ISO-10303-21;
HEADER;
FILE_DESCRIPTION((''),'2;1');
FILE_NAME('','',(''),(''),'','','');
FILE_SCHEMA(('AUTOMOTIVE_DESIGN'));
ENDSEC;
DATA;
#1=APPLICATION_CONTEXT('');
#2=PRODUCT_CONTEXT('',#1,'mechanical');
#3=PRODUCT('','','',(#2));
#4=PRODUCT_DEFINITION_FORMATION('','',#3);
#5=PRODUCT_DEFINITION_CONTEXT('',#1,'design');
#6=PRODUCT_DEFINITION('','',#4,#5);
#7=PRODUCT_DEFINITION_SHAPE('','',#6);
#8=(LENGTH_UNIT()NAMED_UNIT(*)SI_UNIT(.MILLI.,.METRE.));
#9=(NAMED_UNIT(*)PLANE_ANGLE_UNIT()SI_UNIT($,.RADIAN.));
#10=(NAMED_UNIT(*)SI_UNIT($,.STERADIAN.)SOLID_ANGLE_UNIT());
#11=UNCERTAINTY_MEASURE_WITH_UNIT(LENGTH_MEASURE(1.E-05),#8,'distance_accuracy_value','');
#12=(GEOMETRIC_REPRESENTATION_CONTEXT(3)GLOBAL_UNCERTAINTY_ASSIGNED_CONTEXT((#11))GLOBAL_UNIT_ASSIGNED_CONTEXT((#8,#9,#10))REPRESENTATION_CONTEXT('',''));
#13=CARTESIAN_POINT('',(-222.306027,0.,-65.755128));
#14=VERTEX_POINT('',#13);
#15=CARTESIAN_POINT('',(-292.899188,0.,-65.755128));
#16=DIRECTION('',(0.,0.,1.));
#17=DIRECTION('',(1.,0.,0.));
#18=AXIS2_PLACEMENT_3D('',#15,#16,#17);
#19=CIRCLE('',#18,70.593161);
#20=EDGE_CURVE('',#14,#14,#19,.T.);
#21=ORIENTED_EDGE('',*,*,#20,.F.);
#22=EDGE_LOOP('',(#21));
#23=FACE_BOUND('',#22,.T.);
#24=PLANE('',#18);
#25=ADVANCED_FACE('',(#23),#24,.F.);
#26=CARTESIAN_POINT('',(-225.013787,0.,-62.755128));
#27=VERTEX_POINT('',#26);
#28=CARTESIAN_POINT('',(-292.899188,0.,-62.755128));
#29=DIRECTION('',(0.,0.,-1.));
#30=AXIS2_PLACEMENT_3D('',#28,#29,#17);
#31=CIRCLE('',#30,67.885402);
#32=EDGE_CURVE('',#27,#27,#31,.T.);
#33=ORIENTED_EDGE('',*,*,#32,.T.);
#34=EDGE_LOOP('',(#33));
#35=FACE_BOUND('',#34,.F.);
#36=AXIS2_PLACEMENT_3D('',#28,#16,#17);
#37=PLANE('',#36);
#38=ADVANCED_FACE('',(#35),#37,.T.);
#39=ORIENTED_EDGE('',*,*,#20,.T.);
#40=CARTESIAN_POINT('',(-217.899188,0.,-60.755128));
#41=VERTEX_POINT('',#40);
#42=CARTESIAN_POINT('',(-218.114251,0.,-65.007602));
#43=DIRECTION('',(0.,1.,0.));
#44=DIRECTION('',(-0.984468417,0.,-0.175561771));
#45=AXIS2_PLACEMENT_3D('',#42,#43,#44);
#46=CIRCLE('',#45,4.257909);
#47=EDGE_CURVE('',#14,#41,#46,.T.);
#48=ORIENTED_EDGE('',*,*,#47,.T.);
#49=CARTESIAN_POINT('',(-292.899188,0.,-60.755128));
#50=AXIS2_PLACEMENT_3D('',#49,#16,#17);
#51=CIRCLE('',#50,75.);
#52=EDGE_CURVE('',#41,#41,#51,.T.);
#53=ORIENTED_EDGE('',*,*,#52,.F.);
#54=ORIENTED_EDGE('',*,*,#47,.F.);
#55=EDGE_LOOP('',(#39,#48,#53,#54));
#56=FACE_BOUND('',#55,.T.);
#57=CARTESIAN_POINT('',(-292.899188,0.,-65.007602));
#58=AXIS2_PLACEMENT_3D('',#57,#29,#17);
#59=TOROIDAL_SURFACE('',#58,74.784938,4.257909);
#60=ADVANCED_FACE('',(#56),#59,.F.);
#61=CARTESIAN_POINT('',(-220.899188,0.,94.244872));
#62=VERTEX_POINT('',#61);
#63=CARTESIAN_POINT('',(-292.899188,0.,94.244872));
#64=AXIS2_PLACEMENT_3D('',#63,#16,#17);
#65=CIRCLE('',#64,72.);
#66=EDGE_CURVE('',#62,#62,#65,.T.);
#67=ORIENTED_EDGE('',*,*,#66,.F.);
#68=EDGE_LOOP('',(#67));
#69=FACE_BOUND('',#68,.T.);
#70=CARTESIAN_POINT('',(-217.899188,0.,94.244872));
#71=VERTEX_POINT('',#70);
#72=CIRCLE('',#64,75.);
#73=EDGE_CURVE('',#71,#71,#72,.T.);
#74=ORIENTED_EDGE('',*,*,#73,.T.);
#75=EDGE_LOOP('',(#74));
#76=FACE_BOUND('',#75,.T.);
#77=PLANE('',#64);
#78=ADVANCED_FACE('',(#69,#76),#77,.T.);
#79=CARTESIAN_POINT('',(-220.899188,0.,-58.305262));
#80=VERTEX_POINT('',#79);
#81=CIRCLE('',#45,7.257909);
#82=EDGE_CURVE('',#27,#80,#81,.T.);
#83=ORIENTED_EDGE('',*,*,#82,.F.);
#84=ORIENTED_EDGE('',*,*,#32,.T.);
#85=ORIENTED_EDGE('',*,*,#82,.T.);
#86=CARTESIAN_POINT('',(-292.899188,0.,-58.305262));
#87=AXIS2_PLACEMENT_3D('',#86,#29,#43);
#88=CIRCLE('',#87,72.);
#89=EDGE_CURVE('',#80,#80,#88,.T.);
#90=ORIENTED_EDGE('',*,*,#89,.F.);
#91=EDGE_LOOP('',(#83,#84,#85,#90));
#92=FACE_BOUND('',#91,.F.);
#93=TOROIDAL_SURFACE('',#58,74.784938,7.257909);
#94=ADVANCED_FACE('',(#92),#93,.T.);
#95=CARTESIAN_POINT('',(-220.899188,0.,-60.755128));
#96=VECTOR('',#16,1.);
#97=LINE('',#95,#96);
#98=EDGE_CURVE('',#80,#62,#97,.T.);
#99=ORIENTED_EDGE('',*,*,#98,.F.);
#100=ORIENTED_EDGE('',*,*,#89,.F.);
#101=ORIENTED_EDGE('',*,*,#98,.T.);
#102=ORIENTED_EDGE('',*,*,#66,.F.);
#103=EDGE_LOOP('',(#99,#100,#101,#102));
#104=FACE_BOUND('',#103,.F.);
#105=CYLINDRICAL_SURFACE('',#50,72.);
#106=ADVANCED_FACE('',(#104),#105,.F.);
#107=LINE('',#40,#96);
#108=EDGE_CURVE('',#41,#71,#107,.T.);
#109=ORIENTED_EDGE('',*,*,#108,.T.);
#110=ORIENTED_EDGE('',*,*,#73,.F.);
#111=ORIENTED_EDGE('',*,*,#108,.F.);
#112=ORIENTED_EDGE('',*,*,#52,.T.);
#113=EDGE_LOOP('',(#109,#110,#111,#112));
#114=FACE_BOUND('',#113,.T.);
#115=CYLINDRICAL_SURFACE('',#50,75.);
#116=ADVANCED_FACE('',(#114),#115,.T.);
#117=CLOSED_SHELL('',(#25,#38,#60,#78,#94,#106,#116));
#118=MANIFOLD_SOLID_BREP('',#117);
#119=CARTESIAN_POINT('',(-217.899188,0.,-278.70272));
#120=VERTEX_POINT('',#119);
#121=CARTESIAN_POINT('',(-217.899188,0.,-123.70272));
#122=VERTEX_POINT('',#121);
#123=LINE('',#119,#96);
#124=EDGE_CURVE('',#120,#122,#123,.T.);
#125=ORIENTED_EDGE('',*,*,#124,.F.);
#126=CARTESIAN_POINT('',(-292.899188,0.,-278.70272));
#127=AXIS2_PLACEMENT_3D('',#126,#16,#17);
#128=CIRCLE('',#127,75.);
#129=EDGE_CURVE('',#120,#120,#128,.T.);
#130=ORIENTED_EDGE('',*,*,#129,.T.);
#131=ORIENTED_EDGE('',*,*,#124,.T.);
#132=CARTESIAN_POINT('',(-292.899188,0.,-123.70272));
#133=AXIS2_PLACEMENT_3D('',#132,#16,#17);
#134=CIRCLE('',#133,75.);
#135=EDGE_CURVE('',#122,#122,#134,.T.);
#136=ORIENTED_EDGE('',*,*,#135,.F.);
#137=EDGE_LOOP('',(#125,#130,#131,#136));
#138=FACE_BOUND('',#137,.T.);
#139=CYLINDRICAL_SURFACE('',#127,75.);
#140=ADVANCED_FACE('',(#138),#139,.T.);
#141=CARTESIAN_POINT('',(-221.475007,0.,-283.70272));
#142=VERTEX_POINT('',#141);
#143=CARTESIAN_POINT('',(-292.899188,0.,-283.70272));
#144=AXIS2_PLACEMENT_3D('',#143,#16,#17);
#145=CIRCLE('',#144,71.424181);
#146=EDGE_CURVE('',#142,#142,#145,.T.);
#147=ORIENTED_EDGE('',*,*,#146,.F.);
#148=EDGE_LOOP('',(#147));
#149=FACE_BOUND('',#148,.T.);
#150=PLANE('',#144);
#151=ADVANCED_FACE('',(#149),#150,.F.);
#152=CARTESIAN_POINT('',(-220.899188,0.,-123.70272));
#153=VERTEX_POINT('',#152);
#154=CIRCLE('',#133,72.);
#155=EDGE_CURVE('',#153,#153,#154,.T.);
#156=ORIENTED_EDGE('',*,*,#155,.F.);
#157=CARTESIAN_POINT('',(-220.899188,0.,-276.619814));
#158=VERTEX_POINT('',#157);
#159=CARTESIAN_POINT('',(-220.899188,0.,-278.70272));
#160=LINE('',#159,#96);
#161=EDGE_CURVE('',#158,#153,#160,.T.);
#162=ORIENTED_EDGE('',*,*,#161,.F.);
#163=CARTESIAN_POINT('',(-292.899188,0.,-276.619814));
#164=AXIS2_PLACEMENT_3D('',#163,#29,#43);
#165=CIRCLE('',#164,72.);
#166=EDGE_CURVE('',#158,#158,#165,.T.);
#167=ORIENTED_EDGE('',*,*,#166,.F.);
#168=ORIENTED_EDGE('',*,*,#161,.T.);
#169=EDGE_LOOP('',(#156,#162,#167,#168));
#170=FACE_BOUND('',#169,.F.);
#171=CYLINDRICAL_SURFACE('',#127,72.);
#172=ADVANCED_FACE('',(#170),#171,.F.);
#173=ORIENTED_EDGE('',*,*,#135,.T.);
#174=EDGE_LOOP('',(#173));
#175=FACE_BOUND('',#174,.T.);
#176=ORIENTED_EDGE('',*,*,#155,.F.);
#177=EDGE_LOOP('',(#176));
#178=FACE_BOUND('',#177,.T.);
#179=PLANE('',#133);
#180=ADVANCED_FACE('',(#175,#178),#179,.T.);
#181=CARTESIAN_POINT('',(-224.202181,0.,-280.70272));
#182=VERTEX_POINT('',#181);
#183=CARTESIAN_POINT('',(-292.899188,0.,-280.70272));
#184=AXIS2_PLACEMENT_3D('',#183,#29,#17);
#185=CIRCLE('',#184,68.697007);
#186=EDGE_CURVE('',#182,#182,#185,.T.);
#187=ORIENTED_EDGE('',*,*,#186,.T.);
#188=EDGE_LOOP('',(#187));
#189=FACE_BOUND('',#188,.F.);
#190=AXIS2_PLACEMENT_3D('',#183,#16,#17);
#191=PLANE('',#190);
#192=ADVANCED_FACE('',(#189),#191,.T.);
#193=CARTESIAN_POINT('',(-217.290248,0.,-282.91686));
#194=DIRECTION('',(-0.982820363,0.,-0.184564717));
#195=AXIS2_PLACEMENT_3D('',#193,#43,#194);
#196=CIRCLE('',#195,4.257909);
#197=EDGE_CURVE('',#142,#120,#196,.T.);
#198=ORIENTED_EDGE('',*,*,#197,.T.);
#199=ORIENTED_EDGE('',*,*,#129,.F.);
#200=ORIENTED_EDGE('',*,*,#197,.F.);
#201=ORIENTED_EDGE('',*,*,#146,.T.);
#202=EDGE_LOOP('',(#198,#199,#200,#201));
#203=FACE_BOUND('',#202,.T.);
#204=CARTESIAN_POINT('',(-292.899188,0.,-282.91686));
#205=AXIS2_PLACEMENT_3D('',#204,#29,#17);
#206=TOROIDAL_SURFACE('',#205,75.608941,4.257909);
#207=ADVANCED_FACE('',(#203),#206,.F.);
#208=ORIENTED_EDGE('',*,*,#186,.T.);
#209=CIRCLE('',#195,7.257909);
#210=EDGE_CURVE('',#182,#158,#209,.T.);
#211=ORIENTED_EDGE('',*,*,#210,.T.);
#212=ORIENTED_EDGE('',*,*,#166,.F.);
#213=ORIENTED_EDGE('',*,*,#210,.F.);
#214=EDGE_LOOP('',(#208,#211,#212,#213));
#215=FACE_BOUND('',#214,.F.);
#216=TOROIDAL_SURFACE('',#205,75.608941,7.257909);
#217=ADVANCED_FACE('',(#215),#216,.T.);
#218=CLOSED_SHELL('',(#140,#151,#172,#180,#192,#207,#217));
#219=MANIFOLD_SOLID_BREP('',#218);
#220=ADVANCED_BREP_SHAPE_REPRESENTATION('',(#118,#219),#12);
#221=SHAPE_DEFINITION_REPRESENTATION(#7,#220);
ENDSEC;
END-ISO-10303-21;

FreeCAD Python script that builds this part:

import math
import FreeCAD as App
import Part
import Sketcher
Q = App.Units.Quantity


def faces_at(feature, points):
    """Names of the faces that lie closest to the given points."""
    faces = feature.Shape.Faces
    near = lambda p: min(range(len(faces)), key=lambda i: faces[i].distToShape(Part.Vertex(*p))[0])
    return sorted({f"Face{near(p) + 1}" for p in points})

doc = App.newDocument("Part")
body = doc.addObject("PartDesign::Body", "Body")

# Sketch on XZ plane
sketch1 = doc.addObject("Sketcher::SketchObject", "Sketch")
body.addObject(sketch1)
sketch1.AttachmentSupport = (doc.XZ_Plane, [""])
sketch1.MapMode = "FlatFace"
sketch1.addGeometry([
    Part.LineSegment(App.Vector(-217.9, -60.8, 0), App.Vector(-217.9, 94.2, 0)),  # 0
    Part.LineSegment(App.Vector(-217.9, 94.2, 0), App.Vector(-292.9, 94.2, 0)),  # 1
    Part.LineSegment(App.Vector(-292.9, 94.2, 0), App.Vector(-292.9, -65.8, 0)),  # 2
    Part.LineSegment(App.Vector(-292.9, -65.8, 0), App.Vector(-222.3, -65.8, 0)),  # 3
    Part.ArcOfCircle(Part.Circle(App.Vector(-218.1, -65, 0), App.Vector(0, 0, 1), 4.3), math.radians(87), math.radians(190)),  # 4
], False)
sketch1.addGeometry(Part.LineSegment(App.Vector(-292.9, -65.8, 0), App.Vector(-292.9, 94.2, 0)), True)  # axis
sketch1.addConstraint([
    Sketcher.Constraint("Coincident", 0, 2, 1, 1),
    Sketcher.Constraint("Coincident", 1, 2, 2, 1),
    Sketcher.Constraint("Coincident", 2, 2, 3, 1),
    Sketcher.Constraint("Coincident", 3, 2, 4, 2),
    Sketcher.Constraint("Coincident", 4, 1, 0, 1),
    Sketcher.Constraint("Vertical", 0),
    Sketcher.Constraint("Horizontal", 1),
    Sketcher.Constraint("Vertical", 2),
    Sketcher.Constraint("Horizontal", 3),
    Sketcher.Constraint("Vertical", 5),
    Sketcher.Constraint("Coincident", 5, 1, 2, 2),
    Sketcher.Constraint("Horizontal", 0, 2, 5, 2),
    Sketcher.Constraint("DistanceX", 1, 2, 1, 1, Q("75 mm")),
    Sketcher.Constraint("DistanceY", 0, 1, 0, 2, Q("155 mm")),
    Sketcher.Constraint("DistanceY", 2, 2, 2, 1, Q("160 mm")),
    Sketcher.Constraint("Radius", 4, Q("4.257909 mm")),
    Sketcher.Constraint("DistanceX", 3, 1, 3, 2, Q("70.593161 mm")),
    Sketcher.Constraint("DistanceY", 4, 3, -1, 1, Q("65.007602 mm")),
    Sketcher.Constraint("DistanceX", 4, 3, -1, 1, Q("218.114251 mm")),
])
revolution = doc.addObject("PartDesign::Revolution", "Revolution")
body.addObject(revolution)
revolution.Profile = sketch1
revolution.ReferenceAxis = (sketch1, ["Axis0"])
revolution.Angle = 360
doc.recompute()

thickness = doc.addObject("PartDesign::Thickness", "Thickness")
body.addObject(thickness)
thickness.Base = (revolution, faces_at(revolution, [(-292.899, 0, 94.245)]))
thickness.Value = 3
thickness.Reversed = True
thickness.Join = "Arc"
body2 = doc.addObject("PartDesign::Body", "Body001")

# Sketch on XZ plane
sketch2 = doc.addObject("Sketcher::SketchObject", "Sketch001")
body2.addObject(sketch2)
sketch2.AttachmentSupport = (doc.getObject("XZ_Plane001"), [""])
sketch2.MapMode = "FlatFace"
sketch2.addGeometry([
    Part.LineSegment(App.Vector(-217.9, -278.7, 0), App.Vector(-217.9, -123.7, 0)),  # 0
    Part.LineSegment(App.Vector(-217.9, -123.7, 0), App.Vector(-292.9, -123.7, 0)),  # 1
    Part.LineSegment(App.Vector(-292.9, -123.7, 0), App.Vector(-292.9, -283.7, 0)),  # 2
    Part.LineSegment(App.Vector(-292.9, -283.7, 0), App.Vector(-221.5, -283.7, 0)),  # 3
    Part.ArcOfCircle(Part.Circle(App.Vector(-217.3, -282.9, 0), App.Vector(0, 0, 1), 4.3), math.radians(98), math.radians(191)),  # 4
], False)
sketch2.addGeometry(Part.LineSegment(App.Vector(-292.9, -283.7, 0), App.Vector(-292.9, -123.7, 0)), True)  # axis
sketch2.addConstraint([
    Sketcher.Constraint("Coincident", 0, 2, 1, 1),
    Sketcher.Constraint("Coincident", 1, 2, 2, 1),
    Sketcher.Constraint("Coincident", 2, 2, 3, 1),
    Sketcher.Constraint("Coincident", 3, 2, 4, 2),
    Sketcher.Constraint("Coincident", 4, 1, 0, 1),
    Sketcher.Constraint("Vertical", 0),
    Sketcher.Constraint("Horizontal", 1),
    Sketcher.Constraint("Vertical", 2),
    Sketcher.Constraint("Horizontal", 3),
    Sketcher.Constraint("Vertical", 5),
    Sketcher.Constraint("Coincident", 5, 1, 2, 2),
    Sketcher.Constraint("Horizontal", 0, 2, 5, 2),
    Sketcher.Constraint("DistanceX", 1, 2, 1, 1, Q("75 mm")),
    Sketcher.Constraint("DistanceY", 0, 1, 0, 2, Q("155 mm")),
    Sketcher.Constraint("DistanceY", 2, 2, 2, 1, Q("160 mm")),
    Sketcher.Constraint("Radius", 4, Q("4.257909 mm")),
    Sketcher.Constraint("DistanceX", 3, 1, 3, 2, Q("71.424181 mm")),
    Sketcher.Constraint("DistanceY", 4, 3, -1, 1, Q("282.91686 mm")),
    Sketcher.Constraint("DistanceX", 0, 2, -1, 1, Q("217.899188 mm")),
])
revolution2 = doc.addObject("PartDesign::Revolution", "Revolution001")
body2.addObject(revolution2)
revolution2.Profile = sketch2
revolution2.ReferenceAxis = (sketch2, ["Axis0"])
revolution2.Angle = 360
doc.recompute()

thickness2 = doc.addObject("PartDesign::Thickness", "Thickness001")
body2.addObject(thickness2)
thickness2.Base = (revolution2, faces_at(revolution2, [(-292.899, 0, -123.703)]))
thickness2.Value = 3
thickness2.Reversed = True
thickness2.Join = "Arc"

doc.recompute()
